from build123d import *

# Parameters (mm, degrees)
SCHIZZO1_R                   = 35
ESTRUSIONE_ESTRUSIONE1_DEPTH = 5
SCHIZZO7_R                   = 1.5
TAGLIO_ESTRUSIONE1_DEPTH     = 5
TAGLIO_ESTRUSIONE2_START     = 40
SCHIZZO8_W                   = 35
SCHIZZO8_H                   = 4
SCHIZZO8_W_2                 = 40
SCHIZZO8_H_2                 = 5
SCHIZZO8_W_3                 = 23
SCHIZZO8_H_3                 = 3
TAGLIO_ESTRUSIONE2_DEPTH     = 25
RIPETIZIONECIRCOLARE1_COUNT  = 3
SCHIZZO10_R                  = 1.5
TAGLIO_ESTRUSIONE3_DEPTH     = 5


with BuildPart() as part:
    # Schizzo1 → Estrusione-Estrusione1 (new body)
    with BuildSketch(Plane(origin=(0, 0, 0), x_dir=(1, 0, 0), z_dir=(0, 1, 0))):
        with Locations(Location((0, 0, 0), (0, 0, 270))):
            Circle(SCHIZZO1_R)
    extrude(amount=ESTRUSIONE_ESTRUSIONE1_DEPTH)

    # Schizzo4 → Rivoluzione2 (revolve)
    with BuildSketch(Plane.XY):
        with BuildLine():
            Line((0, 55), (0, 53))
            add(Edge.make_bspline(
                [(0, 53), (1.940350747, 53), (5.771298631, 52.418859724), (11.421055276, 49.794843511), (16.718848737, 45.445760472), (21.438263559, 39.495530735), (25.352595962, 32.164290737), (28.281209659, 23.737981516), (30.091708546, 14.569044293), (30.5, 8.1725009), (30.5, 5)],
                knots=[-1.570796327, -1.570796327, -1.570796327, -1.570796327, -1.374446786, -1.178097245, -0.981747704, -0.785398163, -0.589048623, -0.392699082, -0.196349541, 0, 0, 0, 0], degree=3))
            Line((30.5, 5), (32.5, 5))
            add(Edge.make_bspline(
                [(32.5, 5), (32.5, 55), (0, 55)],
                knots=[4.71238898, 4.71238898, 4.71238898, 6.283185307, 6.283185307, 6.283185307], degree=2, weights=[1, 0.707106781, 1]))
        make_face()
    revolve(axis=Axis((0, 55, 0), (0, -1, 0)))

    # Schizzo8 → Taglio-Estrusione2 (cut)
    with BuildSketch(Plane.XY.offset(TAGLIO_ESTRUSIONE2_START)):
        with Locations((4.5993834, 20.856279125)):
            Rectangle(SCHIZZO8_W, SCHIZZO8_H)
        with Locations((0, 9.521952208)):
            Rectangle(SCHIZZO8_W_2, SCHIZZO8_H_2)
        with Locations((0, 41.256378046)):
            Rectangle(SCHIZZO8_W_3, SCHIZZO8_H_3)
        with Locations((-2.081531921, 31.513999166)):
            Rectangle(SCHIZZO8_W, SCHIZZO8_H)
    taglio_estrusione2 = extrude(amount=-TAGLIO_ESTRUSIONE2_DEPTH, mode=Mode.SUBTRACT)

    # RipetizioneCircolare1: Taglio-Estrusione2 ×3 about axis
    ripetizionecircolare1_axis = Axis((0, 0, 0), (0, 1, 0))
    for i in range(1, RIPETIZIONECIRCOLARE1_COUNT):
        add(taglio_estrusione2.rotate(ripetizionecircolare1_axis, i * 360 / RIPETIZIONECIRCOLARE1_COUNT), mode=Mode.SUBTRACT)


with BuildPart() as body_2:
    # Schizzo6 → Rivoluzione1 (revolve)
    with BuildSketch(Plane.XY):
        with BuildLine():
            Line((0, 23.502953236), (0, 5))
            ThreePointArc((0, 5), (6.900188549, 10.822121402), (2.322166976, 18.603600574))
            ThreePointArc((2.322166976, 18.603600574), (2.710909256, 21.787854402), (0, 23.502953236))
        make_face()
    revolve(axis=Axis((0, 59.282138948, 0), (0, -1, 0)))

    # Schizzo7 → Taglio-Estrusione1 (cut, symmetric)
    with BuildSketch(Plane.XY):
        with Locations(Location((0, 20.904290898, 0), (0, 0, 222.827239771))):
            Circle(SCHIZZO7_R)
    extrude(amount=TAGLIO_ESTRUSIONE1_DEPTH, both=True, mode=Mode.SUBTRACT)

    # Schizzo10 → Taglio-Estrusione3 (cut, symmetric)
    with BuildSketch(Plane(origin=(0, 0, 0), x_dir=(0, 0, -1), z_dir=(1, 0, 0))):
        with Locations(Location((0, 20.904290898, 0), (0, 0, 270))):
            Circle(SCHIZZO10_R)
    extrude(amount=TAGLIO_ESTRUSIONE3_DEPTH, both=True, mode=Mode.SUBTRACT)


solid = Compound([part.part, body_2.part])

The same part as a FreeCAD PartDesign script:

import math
import FreeCAD as App
import Part
import Sketcher

V = App.Vector
Q = App.Units.Quantity


def add_polygon(sketch, points):
    """Adds a closed chain of lines whose ends are joined by coincident constraints."""
    first, n = sketch.GeometryCount, len(points)
    for a, b in zip(points, points[1:] + points[:1]):
        sketch.addGeometry(Part.LineSegment(App.Vector(*a, 0), App.Vector(*b, 0)), False)
    for i in range(n):
        sketch.addConstraint(Sketcher.Constraint("Coincident", first + i, 2, first + (i + 1) % n, 1))

doc = App.newDocument("Part")
body = doc.addObject("PartDesign::Body", "Body")

sketch1 = doc.addObject("Sketcher::SketchObject", "Sketch")
body.addObject(sketch1)
sketch1.AttachmentSupport = (doc.XZ_Plane, [""])
sketch1.MapMode = "FlatFace"
sketch1.addGeometry(Part.Circle(V(0, 0, 0), V(0, 0, 1), 35), False)
sketch1.addConstraint([
    Sketcher.Constraint("Coincident", 0, 3, -1, 1),
    Sketcher.Constraint("Diameter", 0, Q("70 mm")),
])
pad1 = doc.addObject("PartDesign::Pad", "Pad")
body.addObject(pad1)
pad1.Profile = sketch1
pad1.Length = 5
pad1.Reversed = True

sketch2 = doc.addObject("Sketcher::SketchObject", "Sketch001")
body.addObject(sketch2)
sketch2.AttachmentSupport = (doc.XY_Plane, [""])
sketch2.MapMode = "FlatFace"
sketch2.addGeometry([
    Part.LineSegment(V(0, 55, 0), V(0, 53, 0)),
    Part.BSplineCurve([V(0, 53, 0), V(1.940351, 53, 0), V(5.771299, 52.41886, 0), V(11.421055, 49.794844, 0), V(16.718849, 45.44576, 0), V(21.438264, 39.495531, 0), V(25.352596, 32.164291, 0), V(28.28121, 23.737982, 0), V(30.091709, 14.569044, 0), V(30.5, 8.172501, 0), V(30.5, 5, 0)], [4, 1, 1, 1, 1, 1, 1, 1, 4], [-1.570796327, -1.374446786, -1.178097245, -0.981747704, -0.785398163, -0.589048623, -0.392699082, -0.196349541, 0], False, 3, [1, 1, 1, 1, 1, 1, 1, 1, 1, 1, 1], False),
    Part.LineSegment(V(30.5, 5, 0), V(32.5, 5, 0)),
    Part.BSplineCurve([V(32.5, 5, 0), V(32.5, 55, 0), V(0, 55, 0)], [3, 3], [4.71238898, 6.283185307], False, 2, [1, 0.707106781, 1], False),
], False)
sketch2.addConstraint([
    Sketcher.Constraint("Block", 1),
    Sketcher.Constraint("Block", 3),
    Sketcher.Constraint("Coincident", 0, 2, 1, 1),
    Sketcher.Constraint("Coincident", 1, 2, 2, 1),
    Sketcher.Constraint("Coincident", 2, 2, 3, 1),
    Sketcher.Constraint("Coincident", 3, 2, 0, 1),
])
revolution = doc.addObject("PartDesign::Revolution", "Revolution")
body.addObject(revolution)
revolution.Profile = sketch2
revolution.ReferenceAxis = (sketch2, ["V_Axis"])
revolution.Angle = 360

sketch3 = doc.addObject("Sketcher::SketchObject", "Sketch002")
body.addObject(sketch3)
sketch3.AttachmentSupport = (doc.XY_Plane, [""])
sketch3.MapMode = "FlatFace"
sketch3.AttachmentOffset = App.Placement(V(0, 0, 40), App.Rotation())
add_polygon(sketch3, [(-12.9, 22.9), (-12.9, 18.9), (22.1, 18.9), (22.1, 22.9)])
add_polygon(sketch3, [(-20, 12), (-20, 7), (20, 7), (20, 12)])
add_polygon(sketch3, [(-11.5, 42.8), (-11.5, 39.8), (11.5, 39.8), (11.5, 42.8)])
add_polygon(sketch3, [(-19.6, 33.5), (-19.6, 29.5), (15.4, 29.5), (15.4, 33.5)])
sketch3.addConstraint([
    Sketcher.Constraint("Vertical", 0),
    Sketcher.Constraint("Horizontal", 1),
    Sketcher.Constraint("Vertical", 2),
    Sketcher.Constraint("Horizontal", 3),
    Sketcher.Constraint("Vertical", 4),
    Sketcher.Constraint("Horizontal", 5),
    Sketcher.Constraint("Vertical", 6),
    Sketcher.Constraint("Horizontal", 7),
    Sketcher.Constraint("Vertical", 8),
    Sketcher.Constraint("Horizontal", 9),
    Sketcher.Constraint("Vertical", 10),
    Sketcher.Constraint("Horizontal", 11),
    Sketcher.Constraint("Vertical", 12),
    Sketcher.Constraint("Horizontal", 13),
    Sketcher.Constraint("Vertical", 14),
    Sketcher.Constraint("Horizontal", 15),
    Sketcher.Constraint("Equal", 3, 13),
    Sketcher.Constraint("Equal", 2, 12),
    Sketcher.Constraint("DistanceX", 1, 1, 1, 2, Q("35 mm")),
    Sketcher.Constraint("DistanceX", 5, 1, 5, 2, Q("40 mm")),
    Sketcher.Constraint("DistanceX", 9, 1, 9, 2, Q("23 mm")),
    Sketcher.Constraint("DistanceY", 0, 2, 0, 1, Q("4 mm")),
    Sketcher.Constraint("DistanceY", 4, 2, 4, 1, Q("5 mm")),
    Sketcher.Constraint("DistanceY", 8, 2, 8, 1, Q("3 mm")),
    Sketcher.Constraint("DistanceX", 4, 2, -1, 1, Q("20 mm")),
    Sketcher.Constraint("DistanceX", 8, 2, -1, 1, Q("11.5 mm")),
    Sketcher.Constraint("DistanceY", -1, 1, 12, 2, Q("29.513999 mm")),
    Sketcher.Constraint("DistanceY", 3, 2, 8, 2, Q("16.900099 mm")),
    Sketcher.Constraint("DistanceY", -1, 1, 0, 2, Q("18.856279 mm")),
    Sketcher.Constraint("DistanceX", 12, 2, -1, 1, Q("19.581532 mm")),
    Sketcher.Constraint("DistanceX", 0, 2, -1, 1, Q("12.900617 mm")),
    Sketcher.Constraint("DistanceY", -1, 1, 4, 2, Q("7.021952 mm")),
])
pocket1 = doc.addObject("PartDesign::Pocket", "Pocket")
body.addObject(pocket1)
pocket1.Profile = sketch3
pocket1.Length = 25
doc.recompute()

polarpattern = doc.addObject("PartDesign::PolarPattern", "PolarPattern")
body.addObject(polarpattern)
polarpattern.Originals = [pocket1]
polarpattern.Axis = (doc.Y_Axis, [""])
polarpattern.Angle = 360
polarpattern.Occurrences = 3
body.Tip = polarpattern
body2 = doc.addObject("PartDesign::Body", "Body001")

sketch4 = doc.addObject("Sketcher::SketchObject", "Sketch003")
body2.addObject(sketch4)
sketch4.AttachmentSupport = (doc.getObject("XY_Plane001"), [""])
sketch4.MapMode = "FlatFace"
sketch4.addGeometry([
    Part.LineSegment(V(0, 23.5, 0), V(0, 5, 0)),
    Part.ArcOfCircle(Part.Circle(V(0, 12, 0), V(0, 0, 1), 7), math.radians(-90), math.radians(71)),
    Part.ArcOfCircle(Part.Circle(V(0, 20.5, 0), V(0, 0, 1), 3), math.radians(-39), math.radians(90)),
], False)
sketch4.addConstraint([
    Sketcher.Constraint("Coincident", 0, 2, 1, 1),
    Sketcher.Constraint("Coincident", 1, 2, 2, 1),
    Sketcher.Constraint("Coincident", 2, 2, 0, 1),
    Sketcher.Constraint("Vertical", 0),
    Sketcher.Constraint("PointOnObject", 1, 3, -2),
    Sketcher.Constraint("PointOnObject", 2, 3, -2),
    Sketcher.Constraint("PointOnObject", 0, 2, -2),
    Sketcher.Constraint("Radius", 1, Q("7 mm")),
    Sketcher.Constraint("Radius", 2, Q("3 mm")),
    Sketcher.Constraint("DistanceY", -1, 1, 1, 3, Q("12 mm")),
    Sketcher.Constraint("DistanceY", -1, 1, 1, 2, Q("18.603601 mm")),
])
revolution2 = doc.addObject("PartDesign::Revolution", "Revolution001")
body2.addObject(revolution2)
revolution2.Profile = sketch4
revolution2.ReferenceAxis = (sketch4, ["V_Axis"])
revolution2.Angle = 360

sketch5 = doc.addObject("Sketcher::SketchObject", "Sketch004")
body2.addObject(sketch5)
sketch5.AttachmentSupport = (doc.getObject("XY_Plane001"), [""])
sketch5.MapMode = "FlatFace"
sketch5.addGeometry(Part.Circle(V(0, 20.9, 0), V(0, 0, 1), 1.5), False)
sketch5.addConstraint([
    Sketcher.Constraint("PointOnObject", 0, 3, -2),
    Sketcher.Constraint("Diameter", 0, Q("3 mm")),
    Sketcher.Constraint("DistanceY", -1, 1, 0, 3, Q("20.904291 mm")),
])
pocket2 = doc.addObject("PartDesign::Pocket", "Pocket001")
body2.addObject(pocket2)
pocket2.Profile = sketch5
pocket2.Length = 10
pocket2.Midplane = True

sketch6 = doc.addObject("Sketcher::SketchObject", "Sketch005")
body2.addObject(sketch6)
sketch6.AttachmentSupport = (doc.getObject("YZ_Plane001"), [""])
sketch6.MapMode = "FlatFace"
sketch6.addGeometry(Part.Circle(V(20.9, 0, 0), V(0, 0, 1), 1.5), False)
sketch6.addConstraint([
    Sketcher.Constraint("PointOnObject", 0, 3, -1),
    Sketcher.Constraint("Diameter", 0, Q("3 mm")),
    Sketcher.Constraint("DistanceX", -1, 1, 0, 3, Q("20.904291 mm")),
])
pocket3 = doc.addObject("PartDesign::Pocket", "Pocket002")
body2.addObject(pocket3)
pocket3.Profile = sketch6
pocket3.Length = 10
pocket3.Midplane = True

doc.recompute()
